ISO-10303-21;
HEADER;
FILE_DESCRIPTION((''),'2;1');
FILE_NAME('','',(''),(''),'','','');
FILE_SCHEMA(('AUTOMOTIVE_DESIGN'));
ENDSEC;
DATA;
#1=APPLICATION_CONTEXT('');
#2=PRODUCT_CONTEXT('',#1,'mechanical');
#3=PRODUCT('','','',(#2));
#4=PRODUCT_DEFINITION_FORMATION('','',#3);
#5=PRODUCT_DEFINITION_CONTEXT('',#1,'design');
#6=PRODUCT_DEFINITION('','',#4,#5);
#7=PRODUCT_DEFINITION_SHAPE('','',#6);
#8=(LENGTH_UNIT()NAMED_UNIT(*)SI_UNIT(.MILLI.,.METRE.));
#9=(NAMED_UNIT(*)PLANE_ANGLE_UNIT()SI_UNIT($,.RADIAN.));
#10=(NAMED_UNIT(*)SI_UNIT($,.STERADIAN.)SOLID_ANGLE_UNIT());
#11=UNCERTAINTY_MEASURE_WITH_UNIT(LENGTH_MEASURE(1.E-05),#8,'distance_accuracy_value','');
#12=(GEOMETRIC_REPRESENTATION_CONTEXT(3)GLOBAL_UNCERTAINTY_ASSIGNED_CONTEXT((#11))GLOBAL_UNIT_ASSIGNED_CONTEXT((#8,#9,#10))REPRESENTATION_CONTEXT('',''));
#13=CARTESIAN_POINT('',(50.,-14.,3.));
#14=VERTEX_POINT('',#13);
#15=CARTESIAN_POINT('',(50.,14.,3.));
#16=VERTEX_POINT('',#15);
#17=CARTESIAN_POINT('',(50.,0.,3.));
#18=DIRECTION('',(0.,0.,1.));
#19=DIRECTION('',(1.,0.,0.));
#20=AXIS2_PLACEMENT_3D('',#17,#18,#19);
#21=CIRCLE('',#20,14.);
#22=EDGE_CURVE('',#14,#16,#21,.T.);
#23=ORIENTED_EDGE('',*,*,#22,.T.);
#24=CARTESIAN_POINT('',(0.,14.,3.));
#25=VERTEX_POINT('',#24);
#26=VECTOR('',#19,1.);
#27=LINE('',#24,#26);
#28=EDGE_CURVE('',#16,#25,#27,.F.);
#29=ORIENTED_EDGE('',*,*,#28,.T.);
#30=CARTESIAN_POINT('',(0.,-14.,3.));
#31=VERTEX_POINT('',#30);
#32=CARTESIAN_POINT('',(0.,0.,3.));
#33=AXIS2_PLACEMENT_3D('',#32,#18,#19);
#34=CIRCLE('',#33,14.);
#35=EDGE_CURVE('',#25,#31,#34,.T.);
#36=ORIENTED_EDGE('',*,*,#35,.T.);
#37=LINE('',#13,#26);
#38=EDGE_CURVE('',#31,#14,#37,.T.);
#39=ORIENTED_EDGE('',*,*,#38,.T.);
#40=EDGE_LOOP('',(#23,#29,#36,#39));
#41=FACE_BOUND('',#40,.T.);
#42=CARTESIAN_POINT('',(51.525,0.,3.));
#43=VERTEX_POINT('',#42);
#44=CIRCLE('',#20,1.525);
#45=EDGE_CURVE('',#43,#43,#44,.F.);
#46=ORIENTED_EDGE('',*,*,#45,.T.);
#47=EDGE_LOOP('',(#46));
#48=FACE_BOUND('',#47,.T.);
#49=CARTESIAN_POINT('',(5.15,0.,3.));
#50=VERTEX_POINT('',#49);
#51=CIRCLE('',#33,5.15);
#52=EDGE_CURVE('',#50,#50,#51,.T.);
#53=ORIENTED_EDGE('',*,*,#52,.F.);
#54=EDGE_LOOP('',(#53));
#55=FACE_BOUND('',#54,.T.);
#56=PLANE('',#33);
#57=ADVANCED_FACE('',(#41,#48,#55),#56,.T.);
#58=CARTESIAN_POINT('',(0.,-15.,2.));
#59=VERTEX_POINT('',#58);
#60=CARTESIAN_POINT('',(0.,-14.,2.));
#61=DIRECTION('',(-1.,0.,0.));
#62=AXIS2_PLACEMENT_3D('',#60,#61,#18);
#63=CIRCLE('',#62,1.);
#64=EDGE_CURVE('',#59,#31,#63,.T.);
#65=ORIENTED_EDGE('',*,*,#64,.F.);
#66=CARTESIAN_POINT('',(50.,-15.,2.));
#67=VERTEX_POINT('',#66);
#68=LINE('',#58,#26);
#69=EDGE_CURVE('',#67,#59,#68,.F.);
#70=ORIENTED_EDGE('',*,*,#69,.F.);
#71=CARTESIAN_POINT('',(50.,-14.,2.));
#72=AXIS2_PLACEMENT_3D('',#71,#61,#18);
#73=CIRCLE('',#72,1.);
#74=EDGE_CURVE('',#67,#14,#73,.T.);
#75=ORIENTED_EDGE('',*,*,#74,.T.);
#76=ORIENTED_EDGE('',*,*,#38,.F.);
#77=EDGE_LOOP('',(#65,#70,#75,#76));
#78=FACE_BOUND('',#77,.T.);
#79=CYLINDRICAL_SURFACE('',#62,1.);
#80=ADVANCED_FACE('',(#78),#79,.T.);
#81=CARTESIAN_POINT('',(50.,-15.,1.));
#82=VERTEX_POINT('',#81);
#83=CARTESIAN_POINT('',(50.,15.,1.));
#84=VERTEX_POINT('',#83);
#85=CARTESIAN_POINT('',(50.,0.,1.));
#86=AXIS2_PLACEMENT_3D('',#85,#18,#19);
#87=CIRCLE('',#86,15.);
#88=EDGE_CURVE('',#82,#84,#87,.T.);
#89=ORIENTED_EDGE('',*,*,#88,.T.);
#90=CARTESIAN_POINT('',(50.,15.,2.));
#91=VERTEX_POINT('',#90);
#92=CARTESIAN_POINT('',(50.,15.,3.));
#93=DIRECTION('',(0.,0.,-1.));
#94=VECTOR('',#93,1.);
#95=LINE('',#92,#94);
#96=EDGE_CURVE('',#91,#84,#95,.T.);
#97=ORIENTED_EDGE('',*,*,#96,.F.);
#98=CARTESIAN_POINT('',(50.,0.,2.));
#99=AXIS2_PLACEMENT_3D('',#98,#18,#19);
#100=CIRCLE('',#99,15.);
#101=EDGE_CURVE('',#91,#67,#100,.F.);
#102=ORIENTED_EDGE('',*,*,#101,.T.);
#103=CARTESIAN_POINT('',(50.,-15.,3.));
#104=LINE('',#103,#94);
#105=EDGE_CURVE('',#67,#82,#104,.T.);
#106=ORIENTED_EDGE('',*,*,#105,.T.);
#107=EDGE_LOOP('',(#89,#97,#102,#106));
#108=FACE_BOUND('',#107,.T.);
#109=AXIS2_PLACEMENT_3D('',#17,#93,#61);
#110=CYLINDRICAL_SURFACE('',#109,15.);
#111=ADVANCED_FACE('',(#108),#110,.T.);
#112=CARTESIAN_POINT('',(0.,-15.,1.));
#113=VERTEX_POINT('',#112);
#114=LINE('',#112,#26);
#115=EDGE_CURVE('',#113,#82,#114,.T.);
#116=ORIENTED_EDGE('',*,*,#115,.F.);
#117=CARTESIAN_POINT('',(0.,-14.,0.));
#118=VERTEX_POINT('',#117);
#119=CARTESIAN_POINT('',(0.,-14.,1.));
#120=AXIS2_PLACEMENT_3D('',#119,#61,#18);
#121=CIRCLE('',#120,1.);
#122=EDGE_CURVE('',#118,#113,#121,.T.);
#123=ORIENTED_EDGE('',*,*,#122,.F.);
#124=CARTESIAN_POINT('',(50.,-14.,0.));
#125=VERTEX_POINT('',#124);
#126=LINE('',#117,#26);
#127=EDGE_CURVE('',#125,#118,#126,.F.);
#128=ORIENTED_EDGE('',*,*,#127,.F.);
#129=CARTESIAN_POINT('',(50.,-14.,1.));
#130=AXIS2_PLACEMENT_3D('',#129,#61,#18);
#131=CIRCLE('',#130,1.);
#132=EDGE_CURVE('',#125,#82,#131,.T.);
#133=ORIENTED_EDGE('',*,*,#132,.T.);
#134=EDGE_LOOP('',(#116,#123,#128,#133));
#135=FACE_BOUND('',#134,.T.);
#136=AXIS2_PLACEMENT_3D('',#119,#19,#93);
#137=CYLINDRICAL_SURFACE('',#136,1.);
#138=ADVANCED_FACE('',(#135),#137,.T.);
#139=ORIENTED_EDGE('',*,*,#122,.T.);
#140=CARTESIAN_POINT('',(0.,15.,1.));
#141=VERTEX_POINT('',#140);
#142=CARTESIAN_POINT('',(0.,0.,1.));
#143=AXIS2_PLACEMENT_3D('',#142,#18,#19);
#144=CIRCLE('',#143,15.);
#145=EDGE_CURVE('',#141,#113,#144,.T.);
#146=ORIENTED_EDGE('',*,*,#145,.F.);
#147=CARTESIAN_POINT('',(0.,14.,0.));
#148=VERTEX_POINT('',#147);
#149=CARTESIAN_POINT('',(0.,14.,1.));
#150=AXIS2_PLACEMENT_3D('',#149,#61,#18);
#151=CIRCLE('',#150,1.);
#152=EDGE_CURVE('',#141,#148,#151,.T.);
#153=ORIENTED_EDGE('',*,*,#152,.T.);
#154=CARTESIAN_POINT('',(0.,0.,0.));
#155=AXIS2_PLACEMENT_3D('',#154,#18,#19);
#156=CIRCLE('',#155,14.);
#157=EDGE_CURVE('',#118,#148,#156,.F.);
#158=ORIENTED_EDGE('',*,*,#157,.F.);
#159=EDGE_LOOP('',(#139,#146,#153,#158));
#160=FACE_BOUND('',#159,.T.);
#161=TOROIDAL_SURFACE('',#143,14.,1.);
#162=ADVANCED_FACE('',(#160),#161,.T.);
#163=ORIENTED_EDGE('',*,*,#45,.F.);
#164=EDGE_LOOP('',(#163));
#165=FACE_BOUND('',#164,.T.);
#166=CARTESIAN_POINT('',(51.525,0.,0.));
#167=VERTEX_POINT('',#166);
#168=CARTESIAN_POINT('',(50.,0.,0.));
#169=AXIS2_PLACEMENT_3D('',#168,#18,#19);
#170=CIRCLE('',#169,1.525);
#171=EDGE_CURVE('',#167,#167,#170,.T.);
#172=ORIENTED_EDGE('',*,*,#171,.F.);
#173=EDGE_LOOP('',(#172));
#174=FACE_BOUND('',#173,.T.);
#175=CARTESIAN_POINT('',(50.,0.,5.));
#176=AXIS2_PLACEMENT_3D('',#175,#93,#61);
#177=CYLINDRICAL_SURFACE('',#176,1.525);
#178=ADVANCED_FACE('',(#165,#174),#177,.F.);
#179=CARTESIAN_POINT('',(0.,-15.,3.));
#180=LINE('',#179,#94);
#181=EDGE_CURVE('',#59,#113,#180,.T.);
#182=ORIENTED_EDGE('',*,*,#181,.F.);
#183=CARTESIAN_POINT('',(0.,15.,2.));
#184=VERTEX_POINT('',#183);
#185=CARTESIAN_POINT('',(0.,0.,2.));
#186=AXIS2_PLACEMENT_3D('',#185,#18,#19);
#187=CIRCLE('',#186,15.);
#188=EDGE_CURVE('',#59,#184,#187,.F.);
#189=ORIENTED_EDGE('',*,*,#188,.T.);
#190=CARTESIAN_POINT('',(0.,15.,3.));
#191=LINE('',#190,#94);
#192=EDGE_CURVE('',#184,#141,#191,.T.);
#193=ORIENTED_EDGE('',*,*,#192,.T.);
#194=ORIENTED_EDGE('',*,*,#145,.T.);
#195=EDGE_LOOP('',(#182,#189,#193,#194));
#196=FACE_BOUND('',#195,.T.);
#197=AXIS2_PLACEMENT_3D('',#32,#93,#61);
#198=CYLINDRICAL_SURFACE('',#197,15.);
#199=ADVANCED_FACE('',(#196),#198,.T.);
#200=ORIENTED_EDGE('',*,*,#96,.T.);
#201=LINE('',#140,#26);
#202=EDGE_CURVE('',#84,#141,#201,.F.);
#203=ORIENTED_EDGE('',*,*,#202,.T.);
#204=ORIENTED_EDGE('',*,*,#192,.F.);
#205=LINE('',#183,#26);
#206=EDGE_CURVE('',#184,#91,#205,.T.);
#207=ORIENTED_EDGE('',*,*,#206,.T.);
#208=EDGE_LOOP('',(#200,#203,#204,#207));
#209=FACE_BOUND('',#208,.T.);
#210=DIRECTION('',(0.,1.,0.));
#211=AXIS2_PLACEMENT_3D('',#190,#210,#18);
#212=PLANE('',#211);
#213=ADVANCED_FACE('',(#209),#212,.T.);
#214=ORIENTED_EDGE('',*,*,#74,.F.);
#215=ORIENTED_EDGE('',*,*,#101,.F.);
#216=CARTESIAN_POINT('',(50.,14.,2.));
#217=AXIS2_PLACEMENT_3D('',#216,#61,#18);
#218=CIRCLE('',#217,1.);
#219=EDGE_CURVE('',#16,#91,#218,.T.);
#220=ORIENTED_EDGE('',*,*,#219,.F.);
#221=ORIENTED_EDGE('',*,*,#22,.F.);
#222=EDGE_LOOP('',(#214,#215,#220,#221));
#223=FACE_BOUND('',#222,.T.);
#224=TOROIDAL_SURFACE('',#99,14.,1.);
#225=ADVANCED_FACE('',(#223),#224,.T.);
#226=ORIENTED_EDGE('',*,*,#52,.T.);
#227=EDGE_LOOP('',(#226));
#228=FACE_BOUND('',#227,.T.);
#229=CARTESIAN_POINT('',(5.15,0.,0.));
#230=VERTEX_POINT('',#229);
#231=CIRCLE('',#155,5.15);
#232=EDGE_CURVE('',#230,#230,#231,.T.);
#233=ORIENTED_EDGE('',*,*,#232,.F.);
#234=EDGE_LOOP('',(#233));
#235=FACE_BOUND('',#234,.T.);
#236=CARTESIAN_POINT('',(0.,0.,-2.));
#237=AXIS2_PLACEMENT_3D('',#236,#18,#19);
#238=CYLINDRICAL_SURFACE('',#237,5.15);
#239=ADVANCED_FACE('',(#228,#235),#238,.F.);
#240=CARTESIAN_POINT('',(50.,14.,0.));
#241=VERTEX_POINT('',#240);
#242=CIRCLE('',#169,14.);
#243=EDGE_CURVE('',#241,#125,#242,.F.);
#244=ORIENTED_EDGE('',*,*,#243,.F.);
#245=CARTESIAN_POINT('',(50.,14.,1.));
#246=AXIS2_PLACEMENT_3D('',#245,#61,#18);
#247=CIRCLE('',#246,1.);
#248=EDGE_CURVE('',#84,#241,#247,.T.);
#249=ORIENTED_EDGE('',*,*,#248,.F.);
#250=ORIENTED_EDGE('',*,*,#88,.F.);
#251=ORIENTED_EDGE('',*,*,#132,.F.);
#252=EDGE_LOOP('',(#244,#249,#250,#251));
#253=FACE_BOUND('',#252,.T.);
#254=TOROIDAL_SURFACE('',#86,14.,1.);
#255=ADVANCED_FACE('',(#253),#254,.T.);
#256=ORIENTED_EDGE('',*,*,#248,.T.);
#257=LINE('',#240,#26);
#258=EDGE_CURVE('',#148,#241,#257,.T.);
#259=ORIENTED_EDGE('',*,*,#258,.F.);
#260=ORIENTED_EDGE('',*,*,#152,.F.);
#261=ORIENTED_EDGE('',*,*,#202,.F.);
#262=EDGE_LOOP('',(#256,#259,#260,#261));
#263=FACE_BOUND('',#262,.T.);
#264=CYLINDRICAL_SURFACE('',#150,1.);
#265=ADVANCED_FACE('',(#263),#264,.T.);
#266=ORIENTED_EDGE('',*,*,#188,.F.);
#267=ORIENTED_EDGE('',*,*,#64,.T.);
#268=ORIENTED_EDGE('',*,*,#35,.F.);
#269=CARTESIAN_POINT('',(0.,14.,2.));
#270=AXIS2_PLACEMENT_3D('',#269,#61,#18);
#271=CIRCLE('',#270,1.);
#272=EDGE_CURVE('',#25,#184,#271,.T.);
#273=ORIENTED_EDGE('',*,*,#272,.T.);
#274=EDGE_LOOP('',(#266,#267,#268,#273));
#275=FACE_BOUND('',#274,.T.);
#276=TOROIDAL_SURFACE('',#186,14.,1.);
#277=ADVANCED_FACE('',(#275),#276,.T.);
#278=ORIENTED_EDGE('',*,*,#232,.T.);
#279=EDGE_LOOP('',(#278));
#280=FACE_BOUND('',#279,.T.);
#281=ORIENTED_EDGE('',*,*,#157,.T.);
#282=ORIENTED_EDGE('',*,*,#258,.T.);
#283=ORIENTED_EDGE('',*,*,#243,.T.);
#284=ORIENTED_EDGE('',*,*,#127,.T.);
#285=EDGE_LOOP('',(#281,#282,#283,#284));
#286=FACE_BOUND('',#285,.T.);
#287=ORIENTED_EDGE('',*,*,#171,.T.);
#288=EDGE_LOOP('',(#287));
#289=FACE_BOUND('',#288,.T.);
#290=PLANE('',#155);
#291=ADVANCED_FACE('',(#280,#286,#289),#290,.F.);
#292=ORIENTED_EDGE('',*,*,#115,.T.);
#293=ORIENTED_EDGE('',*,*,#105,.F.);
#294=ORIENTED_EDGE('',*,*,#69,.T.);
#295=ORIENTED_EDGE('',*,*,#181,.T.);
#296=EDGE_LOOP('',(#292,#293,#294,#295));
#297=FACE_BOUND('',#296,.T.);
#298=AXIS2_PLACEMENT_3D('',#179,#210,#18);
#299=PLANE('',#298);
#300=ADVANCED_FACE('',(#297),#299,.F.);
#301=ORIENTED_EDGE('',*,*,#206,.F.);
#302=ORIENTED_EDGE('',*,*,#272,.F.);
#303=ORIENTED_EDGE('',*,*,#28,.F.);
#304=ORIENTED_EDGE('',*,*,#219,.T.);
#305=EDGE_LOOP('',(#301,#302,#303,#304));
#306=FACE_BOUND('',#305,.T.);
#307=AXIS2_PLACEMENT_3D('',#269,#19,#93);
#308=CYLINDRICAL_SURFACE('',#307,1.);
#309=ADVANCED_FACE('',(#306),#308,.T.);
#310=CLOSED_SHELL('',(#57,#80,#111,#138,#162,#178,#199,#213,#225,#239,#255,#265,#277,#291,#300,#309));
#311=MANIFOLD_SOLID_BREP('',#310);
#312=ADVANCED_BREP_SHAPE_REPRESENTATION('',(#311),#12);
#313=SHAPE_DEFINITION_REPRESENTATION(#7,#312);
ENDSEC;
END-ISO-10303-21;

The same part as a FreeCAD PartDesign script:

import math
import FreeCAD as App
import Part
import Sketcher

V = App.Vector
Q = App.Units.Quantity


def edges_at(feature, points):
    """Names of the edges that pass closest to the given points."""
    edges = feature.Shape.Edges
    near = lambda p: min(range(len(edges)), key=lambda i: edges[i].distToShape(Part.Vertex(*p))[0])
    return sorted({f"Edge{near(p) + 1}" for p in points})

doc = App.newDocument("Part")
body = doc.addObject("PartDesign::Body", "Body")

# Sketch on XY plane
sketch1 = doc.addObject("Sketcher::SketchObject", "Sketch")
body.addObject(sketch1)
sketch1.AttachmentSupport = (doc.XY_Plane, [""])
sketch1.MapMode = "FlatFace"
sketch1.addGeometry([
    Part.LineSegment(V(50, 15, 0), V(0, 15, 0)),
    Part.ArcOfCircle(Part.Circle(V(0, 0, 0), V(0, 0, 1), 15), math.radians(90), math.radians(270)),
    Part.LineSegment(V(0, -15, 0), V(50, -15, 0)),
    Part.ArcOfCircle(Part.Circle(V(50, 0, 0), V(0, 0, 1), 15), math.radians(-90), math.radians(90)),
], False)
sketch1.addConstraint([
    Sketcher.Constraint("Tangent", 0, 2, 1, 1),
    Sketcher.Constraint("Tangent", 1, 2, 2, 1),
    Sketcher.Constraint("Tangent", 2, 2, 3, 1),
    Sketcher.Constraint("Tangent", 3, 2, 0, 1),
    Sketcher.Constraint("Horizontal", 0),
    Sketcher.Constraint("Horizontal", 2),
    Sketcher.Constraint("Coincident", 1, 3, -1, 1),
    Sketcher.Constraint("Radius", 1, Q("15 mm")),
    Sketcher.Constraint("DistanceX", 0, 2, 0, 1, Q("50 mm")),
])
pad1 = doc.addObject("PartDesign::Pad", "Pad")
body.addObject(pad1)
pad1.Profile = sketch1
pad1.Length = 3

# Sketch on XY plane
sketch2 = doc.addObject("Sketcher::SketchObject", "Sketch001")
body.addObject(sketch2)
sketch2.AttachmentSupport = (doc.XY_Plane, [""])
sketch2.MapMode = "FlatFace"
sketch2.addGeometry(Part.Circle(V(50, 0, 0), V(0, 0, 1), 1.5), False)
sketch2.addConstraint([
    Sketcher.Constraint("PointOnObject", 0, 3, -1),
    Sketcher.Constraint("Diameter", 0, Q("3.05 mm")),
    Sketcher.Constraint("DistanceX", -1, 1, 0, 3, Q("50 mm")),
])
pocket1 = doc.addObject("PartDesign::Pocket", "Pocket")
body.addObject(pocket1)
pocket1.Profile = sketch2
pocket1.Length = 5
pocket1.Reversed = True
doc.recompute()

fillet = doc.addObject("PartDesign::Fillet", "Fillet")
body.addObject(fillet)
fillet.Base = (pocket1, edges_at(pocket1, [
    (65, 0, 3),
    (25, 15, 3),
    (-15, 0, 3),
    (25, 15, 0),
    (65, 0, 0),
    (25, -15, 0),
    (-15, 0, 0),
    (25, -15, 3),
]))
fillet.Radius = 1

# Sketch on XY plane
sketch3 = doc.addObject("Sketcher::SketchObject", "Sketch002")
body.addObject(sketch3)
sketch3.AttachmentSupport = (doc.XY_Plane, [""])
sketch3.MapMode = "FlatFace"
sketch3.AttachmentOffset = App.Placement(V(0, 0, 3), App.Rotation())
sketch3.addGeometry(Part.Circle(V(0, 0, 0), V(0, 0, 1), 5), False)
sketch3.addConstraint([
    Sketcher.Constraint("Coincident", 0, 3, -1, 1),
    Sketcher.Constraint("Diameter", 0, Q("10.3 mm")),
])
pocket2 = doc.addObject("PartDesign::Pocket", "Pocket001")
body.addObject(pocket2)
pocket2.Profile = sketch3
pocket2.Length = 5

doc.recompute()
